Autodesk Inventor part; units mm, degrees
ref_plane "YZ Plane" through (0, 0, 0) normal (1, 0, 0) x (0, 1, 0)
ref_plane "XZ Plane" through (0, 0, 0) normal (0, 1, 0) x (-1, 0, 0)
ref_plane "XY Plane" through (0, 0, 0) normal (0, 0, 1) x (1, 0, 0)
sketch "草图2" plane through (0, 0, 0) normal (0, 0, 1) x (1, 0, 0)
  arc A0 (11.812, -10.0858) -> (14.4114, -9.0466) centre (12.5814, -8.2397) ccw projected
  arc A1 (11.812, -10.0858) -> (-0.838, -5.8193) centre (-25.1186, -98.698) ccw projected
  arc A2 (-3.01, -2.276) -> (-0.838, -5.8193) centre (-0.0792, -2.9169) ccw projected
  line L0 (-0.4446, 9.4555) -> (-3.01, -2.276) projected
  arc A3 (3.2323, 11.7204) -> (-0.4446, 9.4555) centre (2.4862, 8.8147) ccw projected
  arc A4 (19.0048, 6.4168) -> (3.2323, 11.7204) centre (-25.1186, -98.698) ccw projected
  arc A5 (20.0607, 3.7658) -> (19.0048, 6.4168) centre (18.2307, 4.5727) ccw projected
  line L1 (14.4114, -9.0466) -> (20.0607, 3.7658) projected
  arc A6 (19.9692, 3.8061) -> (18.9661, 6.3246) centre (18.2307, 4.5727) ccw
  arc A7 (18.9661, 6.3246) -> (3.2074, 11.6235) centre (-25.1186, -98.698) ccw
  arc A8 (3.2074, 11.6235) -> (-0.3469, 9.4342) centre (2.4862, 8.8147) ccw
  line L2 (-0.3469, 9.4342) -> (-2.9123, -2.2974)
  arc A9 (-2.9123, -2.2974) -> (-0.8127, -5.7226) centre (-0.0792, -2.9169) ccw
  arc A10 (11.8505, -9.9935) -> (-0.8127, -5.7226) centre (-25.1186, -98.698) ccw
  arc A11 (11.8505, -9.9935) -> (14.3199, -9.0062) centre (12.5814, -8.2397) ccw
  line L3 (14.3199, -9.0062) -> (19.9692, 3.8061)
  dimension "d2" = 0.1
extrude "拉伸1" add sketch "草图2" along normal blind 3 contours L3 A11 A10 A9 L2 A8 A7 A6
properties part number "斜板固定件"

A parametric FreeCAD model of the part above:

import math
import FreeCAD as App
import Part
import Sketcher

V = App.Vector

doc = App.newDocument("Part")
params = doc.addObject("Spreadsheet::Sheet", "Params")
for row, (alias, value) in enumerate([
    ("sketch1_radius", "1.9 mm"),
    ("sketch1_radius2", "2.9 mm"),
    ("sketch1_radius3", "96.1 mm"),
    ("pad1_length", "3 mm"),
], start=1):
    params.set(f"A{row}", alias)
    params.set(f"B{row}", "=" + value)
    params.setAlias(f"B{row}", alias)

body = doc.addObject("PartDesign::Body", "Body")

# Sketch on XY plane
sketch1 = doc.addObject("Sketcher::SketchObject", "Sketch")
body.addObject(sketch1)
sketch1.AttachmentSupport = (doc.XY_Plane, [""])
sketch1.MapMode = "FlatFace"
sketch1.addGeometry([
    Part.LineSegment(V(14.3, -9, 0), V(20, 3.8, 0)),  # 0
    Part.ArcOfCircle(Part.Circle(V(18.2, 4.6, 0), V(0, 0, 1), 1.9), math.radians(-24), math.radians(67)),  # 1
    Part.ArcOfCircle(Part.Circle(V(-25.1, -98.7, 0), V(0, 0, 1), 113.9), math.radians(67.23), math.radians(75.6)),  # 2
    Part.ArcOfCircle(Part.Circle(V(2.5, 8.8, 0), V(0, 0, 1), 2.9), math.radians(76), math.radians(168)),  # 3
    Part.LineSegment(V(-0.3, 9.4, 0), V(-2.9, -2.3, 0)),  # 4
    Part.ArcOfCircle(Part.Circle(V(-0.1, -2.9, 0), V(0, 0, 1), 2.9), math.radians(168), math.radians(255)),  # 5
    Part.ArcOfCircle(Part.Circle(V(-25.1, -98.7, 0), V(0, 0, 1), 96.1), math.radians(67.38), math.radians(75.35)),  # 6
    Part.ArcOfCircle(Part.Circle(V(12.6, -8.2, 0), V(0, 0, 1), 1.9), math.radians(-113), math.radians(-24)),  # 7
], False)
sketch1.addConstraint([
    Sketcher.Constraint("Tangent", 0, 2, 1, 1),
    Sketcher.Constraint("Tangent", 1, 2, 2, 1),
    Sketcher.Constraint("Tangent", 2, 2, 3, 1),
    Sketcher.Constraint("Tangent", 3, 2, 4, 1),
    Sketcher.Constraint("Tangent", 4, 2, 5, 1),
    Sketcher.Constraint("Tangent", 5, 2, 6, 2),
    Sketcher.Constraint("Tangent", 6, 1, 7, 1),
    Sketcher.Constraint("Tangent", 7, 2, 0, 1),
    Sketcher.Constraint("Equal", 3, 5),
    Sketcher.Constraint("Equal", 1, 7),
    Sketcher.Constraint("Radius", 1, 1.9),
    Sketcher.Constraint("Radius", 3, 2.9),
    Sketcher.Constraint("Radius", 6, 96.1),
    Sketcher.Constraint("Radius", 2, 113.8904),
    Sketcher.Constraint("DistanceX", 6, 3, 7, 3, 37.7),
    Sketcher.Constraint("DistanceX", -1, 1, 7, 2, 14.32),
    Sketcher.Constraint("DistanceX", 5, 3, 1, 3, 18.31),
    Sketcher.Constraint("DistanceX", 3, 3, 1, 2, 16.48),
    Sketcher.Constraint("DistanceY", 1, 2, 3, 3, 2.49),
    Sketcher.Constraint("DistanceY", 2, 3, -1, 1, 98.689),
    Sketcher.Constraint("DistanceY", 5, 3, -1, 1, 2.917),
    Sketcher.Constraint("DistanceY", 6, 3, -1, 1, 98.698),
])
sketch1.setExpression("Constraints[10]", "Params.sketch1_radius")
sketch1.setExpression("Constraints[11]", "Params.sketch1_radius2")
sketch1.setExpression("Constraints[12]", "Params.sketch1_radius3")
pad1 = doc.addObject("PartDesign::Pad", "Pad")
body.addObject(pad1)
pad1.Profile = sketch1
pad1.setExpression("Length", "Params.pad1_length")

doc.recompute()
